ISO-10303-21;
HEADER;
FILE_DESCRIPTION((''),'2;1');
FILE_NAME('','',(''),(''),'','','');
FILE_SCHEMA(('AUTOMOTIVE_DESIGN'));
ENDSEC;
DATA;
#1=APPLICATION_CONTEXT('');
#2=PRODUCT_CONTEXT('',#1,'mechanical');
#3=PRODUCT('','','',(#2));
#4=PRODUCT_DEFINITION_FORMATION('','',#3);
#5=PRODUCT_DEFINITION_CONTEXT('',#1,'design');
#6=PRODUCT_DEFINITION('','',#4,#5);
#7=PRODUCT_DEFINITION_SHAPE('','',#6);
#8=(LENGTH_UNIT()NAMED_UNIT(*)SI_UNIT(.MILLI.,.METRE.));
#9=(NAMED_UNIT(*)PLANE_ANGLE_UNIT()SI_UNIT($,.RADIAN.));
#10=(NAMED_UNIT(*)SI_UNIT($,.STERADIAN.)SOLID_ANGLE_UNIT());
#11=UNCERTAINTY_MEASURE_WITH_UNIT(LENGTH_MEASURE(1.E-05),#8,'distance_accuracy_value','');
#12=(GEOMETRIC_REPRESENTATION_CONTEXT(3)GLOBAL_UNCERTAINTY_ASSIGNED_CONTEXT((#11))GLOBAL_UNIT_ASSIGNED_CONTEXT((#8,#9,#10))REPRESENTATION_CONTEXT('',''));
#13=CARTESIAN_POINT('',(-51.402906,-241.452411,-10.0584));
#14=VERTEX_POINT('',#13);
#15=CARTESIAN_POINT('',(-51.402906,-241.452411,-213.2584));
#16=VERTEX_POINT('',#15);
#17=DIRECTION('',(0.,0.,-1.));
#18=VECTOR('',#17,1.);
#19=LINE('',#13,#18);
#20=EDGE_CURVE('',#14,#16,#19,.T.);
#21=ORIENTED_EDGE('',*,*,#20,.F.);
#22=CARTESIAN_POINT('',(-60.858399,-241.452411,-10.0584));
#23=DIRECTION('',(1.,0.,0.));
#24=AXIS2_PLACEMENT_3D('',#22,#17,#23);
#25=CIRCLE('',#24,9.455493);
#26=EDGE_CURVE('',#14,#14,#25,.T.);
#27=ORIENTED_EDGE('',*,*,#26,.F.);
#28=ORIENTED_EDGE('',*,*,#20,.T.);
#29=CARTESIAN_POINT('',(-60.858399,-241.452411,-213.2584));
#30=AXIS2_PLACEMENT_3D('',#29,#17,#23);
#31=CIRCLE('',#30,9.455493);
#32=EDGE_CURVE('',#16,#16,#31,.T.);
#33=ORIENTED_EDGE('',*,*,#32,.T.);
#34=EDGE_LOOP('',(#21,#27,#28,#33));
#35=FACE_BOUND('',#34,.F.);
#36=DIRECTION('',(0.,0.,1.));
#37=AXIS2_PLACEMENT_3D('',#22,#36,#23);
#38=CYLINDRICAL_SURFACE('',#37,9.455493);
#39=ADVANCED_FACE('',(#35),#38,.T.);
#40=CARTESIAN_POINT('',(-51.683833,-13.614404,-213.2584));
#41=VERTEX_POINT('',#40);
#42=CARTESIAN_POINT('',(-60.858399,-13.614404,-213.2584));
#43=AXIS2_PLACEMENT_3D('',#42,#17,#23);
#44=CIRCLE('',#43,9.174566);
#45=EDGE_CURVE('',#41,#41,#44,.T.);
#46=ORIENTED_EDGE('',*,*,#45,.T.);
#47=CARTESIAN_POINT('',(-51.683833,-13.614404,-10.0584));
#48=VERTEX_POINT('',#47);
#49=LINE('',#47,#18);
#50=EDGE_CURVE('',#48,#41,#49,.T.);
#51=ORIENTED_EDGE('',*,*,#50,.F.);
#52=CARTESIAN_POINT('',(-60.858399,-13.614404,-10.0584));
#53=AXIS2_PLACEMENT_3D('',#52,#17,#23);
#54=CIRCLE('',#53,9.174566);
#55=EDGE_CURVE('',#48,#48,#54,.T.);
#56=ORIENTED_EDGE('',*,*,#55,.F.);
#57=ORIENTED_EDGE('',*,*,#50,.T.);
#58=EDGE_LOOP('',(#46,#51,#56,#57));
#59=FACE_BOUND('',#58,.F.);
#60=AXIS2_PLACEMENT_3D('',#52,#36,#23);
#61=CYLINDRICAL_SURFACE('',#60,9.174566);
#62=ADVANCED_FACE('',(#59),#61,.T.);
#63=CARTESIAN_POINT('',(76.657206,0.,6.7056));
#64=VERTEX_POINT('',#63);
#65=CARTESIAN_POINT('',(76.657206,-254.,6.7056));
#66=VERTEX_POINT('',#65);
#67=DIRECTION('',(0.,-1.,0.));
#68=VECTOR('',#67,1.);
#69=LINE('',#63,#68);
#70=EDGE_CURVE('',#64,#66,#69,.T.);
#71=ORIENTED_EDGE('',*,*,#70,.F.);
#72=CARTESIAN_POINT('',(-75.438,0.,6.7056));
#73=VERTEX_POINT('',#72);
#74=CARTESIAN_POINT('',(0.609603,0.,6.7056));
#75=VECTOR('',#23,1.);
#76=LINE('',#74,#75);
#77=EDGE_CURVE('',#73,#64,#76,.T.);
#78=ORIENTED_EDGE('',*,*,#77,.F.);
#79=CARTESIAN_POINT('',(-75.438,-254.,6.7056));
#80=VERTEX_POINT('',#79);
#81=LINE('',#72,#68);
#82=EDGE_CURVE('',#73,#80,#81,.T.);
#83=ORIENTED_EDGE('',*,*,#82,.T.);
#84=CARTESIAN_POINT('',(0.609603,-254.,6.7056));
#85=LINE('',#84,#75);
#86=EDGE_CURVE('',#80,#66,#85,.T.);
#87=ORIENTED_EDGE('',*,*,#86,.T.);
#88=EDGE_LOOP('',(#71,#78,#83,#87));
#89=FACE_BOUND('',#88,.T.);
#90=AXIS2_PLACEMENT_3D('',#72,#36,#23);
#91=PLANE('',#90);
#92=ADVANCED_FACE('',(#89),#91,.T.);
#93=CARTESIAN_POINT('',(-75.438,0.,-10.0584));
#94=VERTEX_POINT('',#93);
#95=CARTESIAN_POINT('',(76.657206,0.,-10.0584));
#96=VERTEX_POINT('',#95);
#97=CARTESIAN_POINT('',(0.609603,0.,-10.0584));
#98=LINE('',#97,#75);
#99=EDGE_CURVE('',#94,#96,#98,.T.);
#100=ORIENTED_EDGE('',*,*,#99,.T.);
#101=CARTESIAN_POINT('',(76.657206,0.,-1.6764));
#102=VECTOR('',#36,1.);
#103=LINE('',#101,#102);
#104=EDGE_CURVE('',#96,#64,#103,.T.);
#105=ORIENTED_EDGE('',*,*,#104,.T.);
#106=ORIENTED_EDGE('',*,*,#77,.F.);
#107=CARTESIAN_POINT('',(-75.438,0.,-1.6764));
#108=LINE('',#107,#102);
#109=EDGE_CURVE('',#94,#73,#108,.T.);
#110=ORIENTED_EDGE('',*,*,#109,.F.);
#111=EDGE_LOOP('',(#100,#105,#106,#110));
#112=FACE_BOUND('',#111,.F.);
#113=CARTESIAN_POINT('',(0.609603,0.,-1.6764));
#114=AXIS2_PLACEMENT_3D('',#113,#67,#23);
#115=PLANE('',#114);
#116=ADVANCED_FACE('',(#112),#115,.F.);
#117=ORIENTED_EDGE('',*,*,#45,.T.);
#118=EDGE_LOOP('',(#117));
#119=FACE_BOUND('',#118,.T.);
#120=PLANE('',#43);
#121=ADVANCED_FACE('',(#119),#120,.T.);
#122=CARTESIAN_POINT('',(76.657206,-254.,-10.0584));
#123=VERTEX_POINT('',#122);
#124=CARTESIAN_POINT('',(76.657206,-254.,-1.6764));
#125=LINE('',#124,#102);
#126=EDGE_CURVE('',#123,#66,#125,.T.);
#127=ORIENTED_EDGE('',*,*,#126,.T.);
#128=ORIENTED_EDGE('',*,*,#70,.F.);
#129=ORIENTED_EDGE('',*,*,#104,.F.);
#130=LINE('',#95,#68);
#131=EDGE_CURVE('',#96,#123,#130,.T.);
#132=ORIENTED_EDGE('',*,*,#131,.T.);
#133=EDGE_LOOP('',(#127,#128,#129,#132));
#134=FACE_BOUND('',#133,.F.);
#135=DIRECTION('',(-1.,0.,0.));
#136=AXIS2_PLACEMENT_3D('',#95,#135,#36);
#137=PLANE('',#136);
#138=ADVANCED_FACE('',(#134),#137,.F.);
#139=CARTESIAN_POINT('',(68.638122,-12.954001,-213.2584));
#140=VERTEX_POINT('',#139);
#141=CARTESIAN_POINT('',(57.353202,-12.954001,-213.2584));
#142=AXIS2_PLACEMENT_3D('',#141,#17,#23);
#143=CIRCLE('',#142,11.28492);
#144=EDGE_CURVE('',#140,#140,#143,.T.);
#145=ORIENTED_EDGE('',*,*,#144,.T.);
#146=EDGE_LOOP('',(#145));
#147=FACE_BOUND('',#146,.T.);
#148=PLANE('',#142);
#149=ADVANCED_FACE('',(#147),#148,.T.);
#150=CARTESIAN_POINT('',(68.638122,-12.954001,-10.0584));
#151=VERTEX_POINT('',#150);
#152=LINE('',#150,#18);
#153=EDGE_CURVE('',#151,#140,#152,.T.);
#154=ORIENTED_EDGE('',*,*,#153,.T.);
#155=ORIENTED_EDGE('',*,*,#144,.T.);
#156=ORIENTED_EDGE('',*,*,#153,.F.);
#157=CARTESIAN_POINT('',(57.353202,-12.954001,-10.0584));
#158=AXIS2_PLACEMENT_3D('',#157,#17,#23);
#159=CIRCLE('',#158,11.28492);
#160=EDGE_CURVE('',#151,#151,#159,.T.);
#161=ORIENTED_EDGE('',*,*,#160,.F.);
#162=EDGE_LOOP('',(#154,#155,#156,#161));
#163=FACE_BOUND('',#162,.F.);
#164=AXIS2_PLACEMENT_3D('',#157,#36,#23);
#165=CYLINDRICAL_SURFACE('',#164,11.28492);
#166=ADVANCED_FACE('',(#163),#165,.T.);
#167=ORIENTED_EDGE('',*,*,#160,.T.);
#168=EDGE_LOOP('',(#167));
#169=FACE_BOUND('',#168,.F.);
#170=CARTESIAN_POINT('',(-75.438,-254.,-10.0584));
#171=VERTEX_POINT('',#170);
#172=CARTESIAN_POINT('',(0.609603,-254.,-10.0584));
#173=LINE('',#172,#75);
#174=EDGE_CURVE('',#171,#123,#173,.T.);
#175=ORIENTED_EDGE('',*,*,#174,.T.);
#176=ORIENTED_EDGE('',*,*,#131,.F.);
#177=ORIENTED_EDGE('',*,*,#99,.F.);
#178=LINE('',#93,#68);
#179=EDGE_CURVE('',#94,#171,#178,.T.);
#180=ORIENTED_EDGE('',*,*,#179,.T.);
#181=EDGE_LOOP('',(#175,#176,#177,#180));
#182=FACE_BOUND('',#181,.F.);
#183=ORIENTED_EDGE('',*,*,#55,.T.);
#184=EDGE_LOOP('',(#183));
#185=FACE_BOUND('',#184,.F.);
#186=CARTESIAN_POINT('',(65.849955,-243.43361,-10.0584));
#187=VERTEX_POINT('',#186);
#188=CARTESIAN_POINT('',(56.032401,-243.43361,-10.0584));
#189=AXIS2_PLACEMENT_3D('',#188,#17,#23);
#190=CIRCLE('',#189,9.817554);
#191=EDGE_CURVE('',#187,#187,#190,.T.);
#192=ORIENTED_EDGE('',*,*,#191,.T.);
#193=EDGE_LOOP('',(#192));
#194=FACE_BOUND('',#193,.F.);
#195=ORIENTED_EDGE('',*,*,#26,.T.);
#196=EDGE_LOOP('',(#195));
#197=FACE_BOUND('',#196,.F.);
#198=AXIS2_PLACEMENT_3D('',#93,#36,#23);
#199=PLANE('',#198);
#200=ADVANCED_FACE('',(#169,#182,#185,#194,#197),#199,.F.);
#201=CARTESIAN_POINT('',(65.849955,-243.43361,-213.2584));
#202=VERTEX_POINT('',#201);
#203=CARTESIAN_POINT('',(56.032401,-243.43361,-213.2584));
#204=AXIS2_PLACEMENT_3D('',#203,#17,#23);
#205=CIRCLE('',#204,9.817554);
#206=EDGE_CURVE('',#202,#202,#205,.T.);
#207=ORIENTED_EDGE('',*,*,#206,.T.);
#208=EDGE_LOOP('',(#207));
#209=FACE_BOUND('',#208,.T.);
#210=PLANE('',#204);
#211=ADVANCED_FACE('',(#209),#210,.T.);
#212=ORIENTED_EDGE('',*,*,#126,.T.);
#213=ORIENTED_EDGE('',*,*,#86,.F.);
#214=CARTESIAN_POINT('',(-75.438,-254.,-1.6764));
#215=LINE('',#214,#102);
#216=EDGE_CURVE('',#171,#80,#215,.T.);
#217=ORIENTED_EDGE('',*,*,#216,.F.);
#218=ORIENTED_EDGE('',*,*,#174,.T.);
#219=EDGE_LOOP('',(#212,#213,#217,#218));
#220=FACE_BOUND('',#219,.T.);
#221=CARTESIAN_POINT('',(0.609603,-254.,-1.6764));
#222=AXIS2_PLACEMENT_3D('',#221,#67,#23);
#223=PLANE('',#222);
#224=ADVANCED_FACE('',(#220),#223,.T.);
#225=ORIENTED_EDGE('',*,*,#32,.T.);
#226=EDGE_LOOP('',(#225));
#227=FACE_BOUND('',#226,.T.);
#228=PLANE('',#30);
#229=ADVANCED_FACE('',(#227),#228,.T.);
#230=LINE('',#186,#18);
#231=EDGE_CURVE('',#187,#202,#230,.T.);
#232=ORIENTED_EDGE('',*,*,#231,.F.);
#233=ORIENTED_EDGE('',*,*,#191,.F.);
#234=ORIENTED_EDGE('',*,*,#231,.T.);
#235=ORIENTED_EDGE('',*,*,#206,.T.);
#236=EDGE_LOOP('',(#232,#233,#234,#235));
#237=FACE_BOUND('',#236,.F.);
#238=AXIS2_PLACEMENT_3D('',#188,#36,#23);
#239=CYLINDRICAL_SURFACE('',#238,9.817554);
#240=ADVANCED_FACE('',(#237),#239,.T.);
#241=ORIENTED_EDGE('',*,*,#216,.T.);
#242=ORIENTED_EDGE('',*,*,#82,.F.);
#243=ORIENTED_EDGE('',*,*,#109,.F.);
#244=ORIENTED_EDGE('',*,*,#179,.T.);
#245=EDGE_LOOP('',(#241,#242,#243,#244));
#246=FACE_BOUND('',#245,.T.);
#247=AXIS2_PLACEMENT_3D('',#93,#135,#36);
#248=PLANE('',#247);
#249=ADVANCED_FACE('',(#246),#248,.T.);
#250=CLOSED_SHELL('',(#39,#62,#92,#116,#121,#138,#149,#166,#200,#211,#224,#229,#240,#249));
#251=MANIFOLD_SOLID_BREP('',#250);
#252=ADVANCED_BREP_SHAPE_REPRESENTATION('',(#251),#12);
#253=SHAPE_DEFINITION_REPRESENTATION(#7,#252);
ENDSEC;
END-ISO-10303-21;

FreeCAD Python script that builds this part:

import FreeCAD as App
import Part
import Sketcher

V = App.Vector
Q = App.Units.Quantity

doc = App.newDocument("Part")
body = doc.addObject("PartDesign::Body", "Body")

# Sketch on XZ plane
sketch1 = doc.addObject("Sketcher::SketchObject", "Sketch")
body.addObject(sketch1)
sketch1.AttachmentSupport = (doc.XZ_Plane, [""])
sketch1.MapMode = "FlatFace"
sketch1.addGeometry(Part.LineSegment(V(-75, 7, 0), V(-75, -10, 0)), False)
sketch1.addGeometry(Part.LineSegment(V(-75, -10, 0), V(77, -10, 0)), False)
sketch1.addGeometry(Part.LineSegment(V(77, -10, 0), V(77, 7, 0)), False)
sketch1.addGeometry(Part.LineSegment(V(77, 7, 0), V(-75, 7, 0)), False)
sketch1.addConstraint(Sketcher.Constraint("Coincident", 0, 2, 1, 1))
sketch1.addConstraint(Sketcher.Constraint("Coincident", 1, 2, 2, 1))
sketch1.addConstraint(Sketcher.Constraint("Coincident", 2, 2, 3, 1))
sketch1.addConstraint(Sketcher.Constraint("Coincident", 3, 2, 0, 1))
sketch1.addConstraint(Sketcher.Constraint("Vertical", 0))
sketch1.addConstraint(Sketcher.Constraint("Horizontal", 1))
sketch1.addConstraint(Sketcher.Constraint("Vertical", 2))
sketch1.addConstraint(Sketcher.Constraint("Horizontal", 3))
sketch1.addConstraint(Sketcher.Constraint("DistanceY", 0, 2, 0, 1, Q("0.66 in")))
sketch1.addConstraint(Sketcher.Constraint("DistanceX", 0, 2, -1, 1, Q("2.97 in")))
sketch1.addConstraint(Sketcher.Constraint("DistanceY", 0, 2, -1, 1, Q("0.396 in")))
sketch1.addConstraint(Sketcher.Constraint("DistanceX", 1, 1, 1, 2, Q("152.095206 mm")))
pad1 = doc.addObject("PartDesign::Pad", "Pad")
body.addObject(pad1)
pad1.Profile = sketch1
pad1.Length = Q("10 in")

# Sketch on XY plane
sketch2 = doc.addObject("Sketcher::SketchObject", "Sketch001")
body.addObject(sketch2)
sketch2.AttachmentSupport = (doc.XY_Plane, [""])
sketch2.MapMode = "FlatFace"
sketch2.AttachmentOffset = App.Placement(V(0, 0, -0.396 * 25.4), App.Rotation())
sketch2.addGeometry(Part.Circle(V(-61, -241, 0), V(0, 0, 1), 9), False)
sketch2.addGeometry(Part.Circle(V(-61, -14, 0), V(0, 0, 1), 9), False)
sketch2.addGeometry(Part.Circle(V(57, -13, 0), V(0, 0, 1), 11), False)
sketch2.addGeometry(Part.Circle(V(56, -243, 0), V(0, 0, 1), 10), False)
sketch2.addConstraint(Sketcher.Constraint("Vertical", 0, 3, 1, 3))
sketch2.addConstraint(Sketcher.Constraint("DistanceY", 2, 3, -1, 1, Q("0.51 in")))
sketch2.addConstraint(Sketcher.Constraint("Diameter", 2, Q("22.56984 mm")))
sketch2.addConstraint(Sketcher.Constraint("DistanceX", 0, 3, -1, 1, Q("2.396 in")))
sketch2.addConstraint(Sketcher.Constraint("DistanceY", 1, 3, -1, 1, Q("0.5360002 in")))
sketch2.addConstraint(Sketcher.Constraint("DistanceX", -1, 1, 2, 3, Q("2.2580001 in")))
sketch2.addConstraint(Sketcher.Constraint("DistanceX", -1, 1, 3, 3, Q("2.206 in")))
sketch2.addConstraint(Sketcher.Constraint("DistanceY", 3, 3, 0, 3, Q("0.078 in")))
sketch2.addConstraint(Sketcher.Constraint("Diameter", 0, Q("18.910986 mm")))
sketch2.addConstraint(Sketcher.Constraint("Diameter", 1, Q("18.349132 mm")))
sketch2.addConstraint(Sketcher.Constraint("Diameter", 3, Q("19.635108 mm")))
sketch2.addConstraint(Sketcher.Constraint("DistanceY", 0, 3, -1, 1, Q("241.452411 mm")))
pad2 = doc.addObject("PartDesign::Pad", "Pad001")
body.addObject(pad2)
pad2.Profile = sketch2
pad2.Length = Q("8 in")
pad2.Reversed = True

doc.recompute()
